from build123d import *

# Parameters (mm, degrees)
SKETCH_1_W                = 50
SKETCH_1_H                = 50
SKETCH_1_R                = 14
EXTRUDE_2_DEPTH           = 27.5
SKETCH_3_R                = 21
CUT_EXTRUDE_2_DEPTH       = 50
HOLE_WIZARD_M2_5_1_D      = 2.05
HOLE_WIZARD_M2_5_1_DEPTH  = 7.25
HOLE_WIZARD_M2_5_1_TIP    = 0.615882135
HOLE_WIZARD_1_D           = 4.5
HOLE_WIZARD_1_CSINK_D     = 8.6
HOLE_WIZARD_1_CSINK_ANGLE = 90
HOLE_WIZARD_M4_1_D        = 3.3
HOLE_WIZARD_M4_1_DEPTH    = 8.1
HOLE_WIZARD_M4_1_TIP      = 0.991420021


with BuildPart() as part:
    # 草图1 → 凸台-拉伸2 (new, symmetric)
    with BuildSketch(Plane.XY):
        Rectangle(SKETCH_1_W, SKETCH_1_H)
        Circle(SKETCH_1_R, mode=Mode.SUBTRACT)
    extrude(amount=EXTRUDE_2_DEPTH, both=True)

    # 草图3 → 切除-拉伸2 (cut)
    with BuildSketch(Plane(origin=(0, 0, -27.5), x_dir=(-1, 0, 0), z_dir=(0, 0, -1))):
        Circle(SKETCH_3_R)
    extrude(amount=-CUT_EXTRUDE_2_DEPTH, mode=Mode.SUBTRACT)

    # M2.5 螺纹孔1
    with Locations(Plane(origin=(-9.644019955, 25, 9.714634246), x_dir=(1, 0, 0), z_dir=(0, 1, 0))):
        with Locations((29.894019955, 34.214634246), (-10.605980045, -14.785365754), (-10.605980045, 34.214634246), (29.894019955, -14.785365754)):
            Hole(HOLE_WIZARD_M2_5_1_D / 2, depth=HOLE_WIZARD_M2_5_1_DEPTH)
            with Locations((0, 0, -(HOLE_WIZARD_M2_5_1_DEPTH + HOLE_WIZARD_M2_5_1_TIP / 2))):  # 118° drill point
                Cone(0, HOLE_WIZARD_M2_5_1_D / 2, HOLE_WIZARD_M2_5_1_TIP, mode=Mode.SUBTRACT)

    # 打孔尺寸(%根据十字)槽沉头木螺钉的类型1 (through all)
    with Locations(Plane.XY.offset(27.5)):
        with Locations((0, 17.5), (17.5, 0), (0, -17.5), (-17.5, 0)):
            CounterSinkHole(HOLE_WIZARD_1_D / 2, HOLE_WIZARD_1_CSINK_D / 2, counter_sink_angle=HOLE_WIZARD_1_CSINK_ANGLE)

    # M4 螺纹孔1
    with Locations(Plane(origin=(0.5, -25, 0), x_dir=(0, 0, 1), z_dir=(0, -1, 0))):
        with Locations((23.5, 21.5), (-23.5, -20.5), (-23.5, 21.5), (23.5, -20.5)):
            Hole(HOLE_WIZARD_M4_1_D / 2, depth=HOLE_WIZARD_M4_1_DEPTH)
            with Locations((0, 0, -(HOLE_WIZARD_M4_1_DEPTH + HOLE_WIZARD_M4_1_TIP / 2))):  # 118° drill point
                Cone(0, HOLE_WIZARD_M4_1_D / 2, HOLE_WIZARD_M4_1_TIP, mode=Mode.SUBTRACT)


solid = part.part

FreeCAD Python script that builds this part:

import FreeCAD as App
import Part
import Sketcher

V = App.Vector


def add_polygon(sketch, points):
    """Adds a closed chain of lines whose ends are joined by coincident constraints."""
    first, n = sketch.GeometryCount, len(points)
    for a, b in zip(points, points[1:] + points[:1]):
        sketch.addGeometry(Part.LineSegment(App.Vector(*a, 0), App.Vector(*b, 0)), False)
    for i in range(n):
        sketch.addConstraint(Sketcher.Constraint("Coincident", first + i, 2, first + (i + 1) % n, 1))

doc = App.newDocument("Part")
body = doc.addObject("PartDesign::Body", "Body")

sketch1 = body.newObject("Sketcher::SketchObject", "Sketch")
sketch1.AttachmentSupport = (doc.getObject("XY_Plane"), [""])
sketch1.MapMode = "FlatFace"
add_polygon(sketch1, [(-25, 25), (-25, -25), (25, -25), (25, 25)])
sketch1.addGeometry(Part.Circle(V(0, 0, 0), V(0, 0, 1), 14), False)
sketch1.addConstraint([
    Sketcher.Constraint("Vertical", 0),
    Sketcher.Constraint("Horizontal", 1),
    Sketcher.Constraint("Vertical", 2),
    Sketcher.Constraint("Horizontal", 3),
    Sketcher.Constraint("Coincident", 4, 3, -1, 1),
    Sketcher.Constraint("Symmetric", 0, 2, 2, 2, -1, 1),
    Sketcher.Constraint("Equal", 3, 0),
    Sketcher.Constraint("Diameter", 4, 28.0),
    Sketcher.Constraint("DistanceX", 1, 1, 1, 2, 50.0),
])
pad1 = body.newObject("PartDesign::Pad", "Pad")
pad1.Profile = sketch1
pad1.Length = 55
pad1.Midplane = True

sketch2 = body.newObject("Sketcher::SketchObject", "Sketch001")
sketch2.AttachmentSupport = (doc.getObject("XY_Plane"), [""])
sketch2.MapMode = "FlatFace"
sketch2.AttachmentOffset = App.Placement(V(0, 0, -27.5), App.Rotation())
sketch2.addGeometry(Part.Circle(V(0, 0, 0), V(0, 0, 1), 21), False)
sketch2.addConstraint([
    Sketcher.Constraint("Coincident", 0, 3, -1, 1),
    Sketcher.Constraint("Diameter", 0, 42.0),
])
pocket1 = body.newObject("PartDesign::Pocket", "Pocket")
pocket1.Profile = sketch2
pocket1.Length = 50
pocket1.Reversed = True

sketch3 = body.newObject("Sketcher::SketchObject", "Sketch002")
sketch3.AttachmentSupport = (doc.getObject("XZ_Plane"), [""])
sketch3.MapMode = "FlatFace"
sketch3.AttachmentOffset = App.Placement(V(0, 0, -25), App.Rotation())
sketch3.addGeometry([
    Part.Circle(V(20.25, -24.5, 0), V(0, 0, 1), 1.025),
    Part.Circle(V(-20.25, 24.5, 0), V(0, 0, 1), 1.025),
    Part.Circle(V(-20.25, -24.5, 0), V(0, 0, 1), 1.025),
    Part.Circle(V(20.25, 24.5, 0), V(0, 0, 1), 1.025),
], False)
sketch3.addConstraint([
    Sketcher.Constraint("Equal", 0, 1),
    Sketcher.Constraint("Equal", 1, 2),
    Sketcher.Constraint("Equal", 2, 3),
    Sketcher.Constraint("Symmetric", 0, 3, 1, 3, -1, 1),
    Sketcher.Constraint("Symmetric", 2, 3, 3, 3, -1, 1),
    Sketcher.Constraint("Symmetric", 0, 3, 2, 3, -2),
    Sketcher.Constraint("Diameter", 0, 2.05),
    Sketcher.Constraint("DistanceY", 0, 3, 1, 3, 49.0),
    Sketcher.Constraint("DistanceX", 1, 3, 0, 3, 40.5),
])
doc.recompute()
hole = body.newObject("PartDesign::Hole", "Hole")
hole.Profile = sketch3
hole.ThreadType = "None"
hole.Diameter = 2.05
hole.DepthType = "Dimension"
hole.Depth = 7.25
hole.DrillPoint = "Angled"
hole.DrillPointAngle = 118
hole.Reversed = True

sketch4 = body.newObject("Sketcher::SketchObject", "Sketch003")
sketch4.AttachmentSupport = (doc.getObject("XY_Plane"), [""])
sketch4.MapMode = "FlatFace"
sketch4.AttachmentOffset = App.Placement(V(0, 0, 27.5), App.Rotation())
sketch4.addGeometry([
    Part.Circle(V(0, 17.5, 0), V(0, 0, 1), 2.25),
    Part.Circle(V(17.5, 0, 0), V(0, 0, 1), 2.25),
    Part.Circle(V(0, -17.5, 0), V(0, 0, 1), 2.25),
    Part.Circle(V(-17.5, 0, 0), V(0, 0, 1), 2.25),
], False)
sketch4.addConstraint([
    Sketcher.Constraint("Equal", 0, 1),
    Sketcher.Constraint("Equal", 1, 2),
    Sketcher.Constraint("Equal", 2, 3),
    Sketcher.Constraint("Symmetric", 0, 3, 2, 3, -1, 1),
    Sketcher.Constraint("Symmetric", 1, 3, 3, 3, -1, 1),
    Sketcher.Constraint("PointOnObject", 0, 3, -2),
    Sketcher.Constraint("PointOnObject", 1, 3, -1),
    Sketcher.Constraint("Diameter", 0, 4.5),
    Sketcher.Constraint("DistanceY", 2, 3, 0, 3, 35.0),
    Sketcher.Constraint("DistanceX", 3, 3, 1, 3, 35.0),
])
doc.recompute()
hole2 = body.newObject("PartDesign::Hole", "Hole001")
hole2.Profile = sketch4
hole2.ThreadType = "None"
hole2.Diameter = 4.5
hole2.DepthType = "ThroughAll"
hole2.HoleCutType = "Countersink"
hole2.HoleCutDiameter = 8.6
hole2.HoleCutCountersinkAngle = 90

sketch5 = body.newObject("Sketcher::SketchObject", "Sketch004")
sketch5.AttachmentSupport = (doc.getObject("XZ_Plane"), [""])
sketch5.MapMode = "FlatFace"
sketch5.AttachmentOffset = App.Placement(V(0, 0, 25), App.Rotation())
sketch5.addGeometry([
    Part.Circle(V(-21, 23.5, 0), V(0, 0, 1), 1.65),
    Part.Circle(V(21, -23.5, 0), V(0, 0, 1), 1.65),
    Part.Circle(V(-21, -23.5, 0), V(0, 0, 1), 1.65),
    Part.Circle(V(21, 23.5, 0), V(0, 0, 1), 1.65),
], False)
sketch5.addConstraint([
    Sketcher.Constraint("Equal", 0, 1),
    Sketcher.Constraint("Equal", 1, 2),
    Sketcher.Constraint("Equal", 2, 3),
    Sketcher.Constraint("Symmetric", 0, 3, 1, 3, -1, 1),
    Sketcher.Constraint("Symmetric", 2, 3, 3, 3, -1, 1),
    Sketcher.Constraint("Symmetric", 1, 3, 2, 3, -2),
    Sketcher.Constraint("Diameter", 0, 3.3),
    Sketcher.Constraint("DistanceX", 0, 3, -1, 1, 21.0),
    Sketcher.Constraint("DistanceY", 1, 3, 0, 3, 47.0),
])
doc.recompute()
hole3 = body.newObject("PartDesign::Hole", "Hole002")
hole3.Profile = sketch5
hole3.ThreadType = "None"
hole3.Diameter = 3.3
hole3.DepthType = "Dimension"
hole3.Depth = 8.1
hole3.DrillPoint = "Angled"
hole3.DrillPointAngle = 118

doc.recompute()
